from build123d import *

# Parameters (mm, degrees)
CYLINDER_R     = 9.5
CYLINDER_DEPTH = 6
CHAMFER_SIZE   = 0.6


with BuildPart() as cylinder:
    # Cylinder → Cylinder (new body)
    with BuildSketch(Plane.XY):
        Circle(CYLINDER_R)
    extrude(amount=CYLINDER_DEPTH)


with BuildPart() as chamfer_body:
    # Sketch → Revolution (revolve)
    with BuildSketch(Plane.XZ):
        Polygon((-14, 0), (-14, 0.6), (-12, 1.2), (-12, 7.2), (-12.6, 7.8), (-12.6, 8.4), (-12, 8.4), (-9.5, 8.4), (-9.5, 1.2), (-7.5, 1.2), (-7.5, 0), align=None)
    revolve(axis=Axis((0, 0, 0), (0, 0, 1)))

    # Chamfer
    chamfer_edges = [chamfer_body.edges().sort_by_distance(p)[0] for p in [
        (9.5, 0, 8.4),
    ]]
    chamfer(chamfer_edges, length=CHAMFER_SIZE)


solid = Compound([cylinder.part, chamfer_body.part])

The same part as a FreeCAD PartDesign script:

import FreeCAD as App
import Part
import Sketcher
from FreeCAD import Vector
Q = App.Units.Quantity


def edges_at(feature, points):
    """Names of the edges that pass closest to the given points."""
    edges = feature.Shape.Edges
    near = lambda p: min(range(len(edges)), key=lambda i: edges[i].distToShape(Part.Vertex(*p))[0])
    return sorted({f"Edge{near(p) + 1}" for p in points})


def add_polygon(sketch, points):
    """Adds a closed chain of lines whose ends are joined by coincident constraints."""
    first, n = sketch.GeometryCount, len(points)
    for a, b in zip(points, points[1:] + points[:1]):
        sketch.addGeometry(Part.LineSegment(App.Vector(*a, 0), App.Vector(*b, 0)), False)
    for i in range(n):
        sketch.addConstraint(Sketcher.Constraint("Coincident", first + i, 2, first + (i + 1) % n, 1))

doc = App.newDocument("Part")
body = doc.addObject("PartDesign::Body", "Body")

sketch1 = doc.addObject("Sketcher::SketchObject", "Sketch")
body.addObject(sketch1)
sketch1.AttachmentSupport = (doc.XY_Plane, [""])
sketch1.MapMode = "FlatFace"
sketch1.addGeometry(Part.Circle(Vector(0, 0, 0), Vector(0, 0, 1), 10), False)
sketch1.addConstraint([
    Sketcher.Constraint("Coincident", 0, 3, -1, 1),
    Sketcher.Constraint("Diameter", 0, Q("19 mm")),
])
pad1 = doc.addObject("PartDesign::Pad", "Pad")
body.addObject(pad1)
pad1.Profile = sketch1
pad1.Length = 6
body2 = doc.addObject("PartDesign::Body", "Body001")

sketch2 = doc.addObject("Sketcher::SketchObject", "Sketch001")
body2.addObject(sketch2)
sketch2.AttachmentSupport = (doc.getObject("XZ_Plane001"), [""])
sketch2.MapMode = "FlatFace"
add_polygon(sketch2, [(-14, 0.6), (-14, 0), (-7.5, 0), (-7.5, 1.2), (-9.5, 1.2), (-9.5, 8.4), (-12.6, 8.4), (-12.6, 7.8), (-12, 7.2), (-12, 1.2)])
sketch2.addConstraint([
    Sketcher.Constraint("Vertical", 0),
    Sketcher.Constraint("Horizontal", 1),
    Sketcher.Constraint("Vertical", 2),
    Sketcher.Constraint("Horizontal", 3),
    Sketcher.Constraint("Vertical", 4),
    Sketcher.Constraint("Horizontal", 5),
    Sketcher.Constraint("Vertical", 6),
    Sketcher.Constraint("Vertical", 8),
    Sketcher.Constraint("PointOnObject", 0, 2, -1),
    Sketcher.Constraint("Horizontal", 3, 2, 8, 2),
    Sketcher.Constraint("Equal", 0, 6),
    Sketcher.Constraint("DistanceX", 3, 2, 3, 1, Q("2 mm")),
    Sketcher.Constraint("DistanceY", 8, 2, 8, 1, Q("6 mm")),
    Sketcher.Constraint("Angle", 7, Q("-45 deg")),
    Sketcher.Constraint("DistanceX", 1, 1, 1, 2, Q("6.5 mm")),
    Sketcher.Constraint("DistanceX", 5, 2, 5, 1, Q("3.1 mm")),
    Sketcher.Constraint("DistanceY", 0, 2, 0, 1, Q("0.6 mm")),
    Sketcher.Constraint("DistanceY", 2, 1, 2, 2, Q("1.2 mm")),
    Sketcher.Constraint("DistanceY", 4, 1, 4, 2, Q("7.2 mm")),
    Sketcher.Constraint("DistanceX", 0, 2, -1, 1, Q("14 mm")),
])
revolution = doc.addObject("PartDesign::Revolution", "Revolution")
body2.addObject(revolution)
revolution.Profile = sketch2
revolution.ReferenceAxis = (sketch2, ["V_Axis"])
revolution.Angle = 360
doc.recompute()

chamfer = doc.addObject("PartDesign::Chamfer", "Chamfer")
body2.addObject(chamfer)
chamfer.Base = (revolution, edges_at(revolution, [(9.5, 0, 8.4)]))
chamfer.Size = 0.6

doc.recompute()
